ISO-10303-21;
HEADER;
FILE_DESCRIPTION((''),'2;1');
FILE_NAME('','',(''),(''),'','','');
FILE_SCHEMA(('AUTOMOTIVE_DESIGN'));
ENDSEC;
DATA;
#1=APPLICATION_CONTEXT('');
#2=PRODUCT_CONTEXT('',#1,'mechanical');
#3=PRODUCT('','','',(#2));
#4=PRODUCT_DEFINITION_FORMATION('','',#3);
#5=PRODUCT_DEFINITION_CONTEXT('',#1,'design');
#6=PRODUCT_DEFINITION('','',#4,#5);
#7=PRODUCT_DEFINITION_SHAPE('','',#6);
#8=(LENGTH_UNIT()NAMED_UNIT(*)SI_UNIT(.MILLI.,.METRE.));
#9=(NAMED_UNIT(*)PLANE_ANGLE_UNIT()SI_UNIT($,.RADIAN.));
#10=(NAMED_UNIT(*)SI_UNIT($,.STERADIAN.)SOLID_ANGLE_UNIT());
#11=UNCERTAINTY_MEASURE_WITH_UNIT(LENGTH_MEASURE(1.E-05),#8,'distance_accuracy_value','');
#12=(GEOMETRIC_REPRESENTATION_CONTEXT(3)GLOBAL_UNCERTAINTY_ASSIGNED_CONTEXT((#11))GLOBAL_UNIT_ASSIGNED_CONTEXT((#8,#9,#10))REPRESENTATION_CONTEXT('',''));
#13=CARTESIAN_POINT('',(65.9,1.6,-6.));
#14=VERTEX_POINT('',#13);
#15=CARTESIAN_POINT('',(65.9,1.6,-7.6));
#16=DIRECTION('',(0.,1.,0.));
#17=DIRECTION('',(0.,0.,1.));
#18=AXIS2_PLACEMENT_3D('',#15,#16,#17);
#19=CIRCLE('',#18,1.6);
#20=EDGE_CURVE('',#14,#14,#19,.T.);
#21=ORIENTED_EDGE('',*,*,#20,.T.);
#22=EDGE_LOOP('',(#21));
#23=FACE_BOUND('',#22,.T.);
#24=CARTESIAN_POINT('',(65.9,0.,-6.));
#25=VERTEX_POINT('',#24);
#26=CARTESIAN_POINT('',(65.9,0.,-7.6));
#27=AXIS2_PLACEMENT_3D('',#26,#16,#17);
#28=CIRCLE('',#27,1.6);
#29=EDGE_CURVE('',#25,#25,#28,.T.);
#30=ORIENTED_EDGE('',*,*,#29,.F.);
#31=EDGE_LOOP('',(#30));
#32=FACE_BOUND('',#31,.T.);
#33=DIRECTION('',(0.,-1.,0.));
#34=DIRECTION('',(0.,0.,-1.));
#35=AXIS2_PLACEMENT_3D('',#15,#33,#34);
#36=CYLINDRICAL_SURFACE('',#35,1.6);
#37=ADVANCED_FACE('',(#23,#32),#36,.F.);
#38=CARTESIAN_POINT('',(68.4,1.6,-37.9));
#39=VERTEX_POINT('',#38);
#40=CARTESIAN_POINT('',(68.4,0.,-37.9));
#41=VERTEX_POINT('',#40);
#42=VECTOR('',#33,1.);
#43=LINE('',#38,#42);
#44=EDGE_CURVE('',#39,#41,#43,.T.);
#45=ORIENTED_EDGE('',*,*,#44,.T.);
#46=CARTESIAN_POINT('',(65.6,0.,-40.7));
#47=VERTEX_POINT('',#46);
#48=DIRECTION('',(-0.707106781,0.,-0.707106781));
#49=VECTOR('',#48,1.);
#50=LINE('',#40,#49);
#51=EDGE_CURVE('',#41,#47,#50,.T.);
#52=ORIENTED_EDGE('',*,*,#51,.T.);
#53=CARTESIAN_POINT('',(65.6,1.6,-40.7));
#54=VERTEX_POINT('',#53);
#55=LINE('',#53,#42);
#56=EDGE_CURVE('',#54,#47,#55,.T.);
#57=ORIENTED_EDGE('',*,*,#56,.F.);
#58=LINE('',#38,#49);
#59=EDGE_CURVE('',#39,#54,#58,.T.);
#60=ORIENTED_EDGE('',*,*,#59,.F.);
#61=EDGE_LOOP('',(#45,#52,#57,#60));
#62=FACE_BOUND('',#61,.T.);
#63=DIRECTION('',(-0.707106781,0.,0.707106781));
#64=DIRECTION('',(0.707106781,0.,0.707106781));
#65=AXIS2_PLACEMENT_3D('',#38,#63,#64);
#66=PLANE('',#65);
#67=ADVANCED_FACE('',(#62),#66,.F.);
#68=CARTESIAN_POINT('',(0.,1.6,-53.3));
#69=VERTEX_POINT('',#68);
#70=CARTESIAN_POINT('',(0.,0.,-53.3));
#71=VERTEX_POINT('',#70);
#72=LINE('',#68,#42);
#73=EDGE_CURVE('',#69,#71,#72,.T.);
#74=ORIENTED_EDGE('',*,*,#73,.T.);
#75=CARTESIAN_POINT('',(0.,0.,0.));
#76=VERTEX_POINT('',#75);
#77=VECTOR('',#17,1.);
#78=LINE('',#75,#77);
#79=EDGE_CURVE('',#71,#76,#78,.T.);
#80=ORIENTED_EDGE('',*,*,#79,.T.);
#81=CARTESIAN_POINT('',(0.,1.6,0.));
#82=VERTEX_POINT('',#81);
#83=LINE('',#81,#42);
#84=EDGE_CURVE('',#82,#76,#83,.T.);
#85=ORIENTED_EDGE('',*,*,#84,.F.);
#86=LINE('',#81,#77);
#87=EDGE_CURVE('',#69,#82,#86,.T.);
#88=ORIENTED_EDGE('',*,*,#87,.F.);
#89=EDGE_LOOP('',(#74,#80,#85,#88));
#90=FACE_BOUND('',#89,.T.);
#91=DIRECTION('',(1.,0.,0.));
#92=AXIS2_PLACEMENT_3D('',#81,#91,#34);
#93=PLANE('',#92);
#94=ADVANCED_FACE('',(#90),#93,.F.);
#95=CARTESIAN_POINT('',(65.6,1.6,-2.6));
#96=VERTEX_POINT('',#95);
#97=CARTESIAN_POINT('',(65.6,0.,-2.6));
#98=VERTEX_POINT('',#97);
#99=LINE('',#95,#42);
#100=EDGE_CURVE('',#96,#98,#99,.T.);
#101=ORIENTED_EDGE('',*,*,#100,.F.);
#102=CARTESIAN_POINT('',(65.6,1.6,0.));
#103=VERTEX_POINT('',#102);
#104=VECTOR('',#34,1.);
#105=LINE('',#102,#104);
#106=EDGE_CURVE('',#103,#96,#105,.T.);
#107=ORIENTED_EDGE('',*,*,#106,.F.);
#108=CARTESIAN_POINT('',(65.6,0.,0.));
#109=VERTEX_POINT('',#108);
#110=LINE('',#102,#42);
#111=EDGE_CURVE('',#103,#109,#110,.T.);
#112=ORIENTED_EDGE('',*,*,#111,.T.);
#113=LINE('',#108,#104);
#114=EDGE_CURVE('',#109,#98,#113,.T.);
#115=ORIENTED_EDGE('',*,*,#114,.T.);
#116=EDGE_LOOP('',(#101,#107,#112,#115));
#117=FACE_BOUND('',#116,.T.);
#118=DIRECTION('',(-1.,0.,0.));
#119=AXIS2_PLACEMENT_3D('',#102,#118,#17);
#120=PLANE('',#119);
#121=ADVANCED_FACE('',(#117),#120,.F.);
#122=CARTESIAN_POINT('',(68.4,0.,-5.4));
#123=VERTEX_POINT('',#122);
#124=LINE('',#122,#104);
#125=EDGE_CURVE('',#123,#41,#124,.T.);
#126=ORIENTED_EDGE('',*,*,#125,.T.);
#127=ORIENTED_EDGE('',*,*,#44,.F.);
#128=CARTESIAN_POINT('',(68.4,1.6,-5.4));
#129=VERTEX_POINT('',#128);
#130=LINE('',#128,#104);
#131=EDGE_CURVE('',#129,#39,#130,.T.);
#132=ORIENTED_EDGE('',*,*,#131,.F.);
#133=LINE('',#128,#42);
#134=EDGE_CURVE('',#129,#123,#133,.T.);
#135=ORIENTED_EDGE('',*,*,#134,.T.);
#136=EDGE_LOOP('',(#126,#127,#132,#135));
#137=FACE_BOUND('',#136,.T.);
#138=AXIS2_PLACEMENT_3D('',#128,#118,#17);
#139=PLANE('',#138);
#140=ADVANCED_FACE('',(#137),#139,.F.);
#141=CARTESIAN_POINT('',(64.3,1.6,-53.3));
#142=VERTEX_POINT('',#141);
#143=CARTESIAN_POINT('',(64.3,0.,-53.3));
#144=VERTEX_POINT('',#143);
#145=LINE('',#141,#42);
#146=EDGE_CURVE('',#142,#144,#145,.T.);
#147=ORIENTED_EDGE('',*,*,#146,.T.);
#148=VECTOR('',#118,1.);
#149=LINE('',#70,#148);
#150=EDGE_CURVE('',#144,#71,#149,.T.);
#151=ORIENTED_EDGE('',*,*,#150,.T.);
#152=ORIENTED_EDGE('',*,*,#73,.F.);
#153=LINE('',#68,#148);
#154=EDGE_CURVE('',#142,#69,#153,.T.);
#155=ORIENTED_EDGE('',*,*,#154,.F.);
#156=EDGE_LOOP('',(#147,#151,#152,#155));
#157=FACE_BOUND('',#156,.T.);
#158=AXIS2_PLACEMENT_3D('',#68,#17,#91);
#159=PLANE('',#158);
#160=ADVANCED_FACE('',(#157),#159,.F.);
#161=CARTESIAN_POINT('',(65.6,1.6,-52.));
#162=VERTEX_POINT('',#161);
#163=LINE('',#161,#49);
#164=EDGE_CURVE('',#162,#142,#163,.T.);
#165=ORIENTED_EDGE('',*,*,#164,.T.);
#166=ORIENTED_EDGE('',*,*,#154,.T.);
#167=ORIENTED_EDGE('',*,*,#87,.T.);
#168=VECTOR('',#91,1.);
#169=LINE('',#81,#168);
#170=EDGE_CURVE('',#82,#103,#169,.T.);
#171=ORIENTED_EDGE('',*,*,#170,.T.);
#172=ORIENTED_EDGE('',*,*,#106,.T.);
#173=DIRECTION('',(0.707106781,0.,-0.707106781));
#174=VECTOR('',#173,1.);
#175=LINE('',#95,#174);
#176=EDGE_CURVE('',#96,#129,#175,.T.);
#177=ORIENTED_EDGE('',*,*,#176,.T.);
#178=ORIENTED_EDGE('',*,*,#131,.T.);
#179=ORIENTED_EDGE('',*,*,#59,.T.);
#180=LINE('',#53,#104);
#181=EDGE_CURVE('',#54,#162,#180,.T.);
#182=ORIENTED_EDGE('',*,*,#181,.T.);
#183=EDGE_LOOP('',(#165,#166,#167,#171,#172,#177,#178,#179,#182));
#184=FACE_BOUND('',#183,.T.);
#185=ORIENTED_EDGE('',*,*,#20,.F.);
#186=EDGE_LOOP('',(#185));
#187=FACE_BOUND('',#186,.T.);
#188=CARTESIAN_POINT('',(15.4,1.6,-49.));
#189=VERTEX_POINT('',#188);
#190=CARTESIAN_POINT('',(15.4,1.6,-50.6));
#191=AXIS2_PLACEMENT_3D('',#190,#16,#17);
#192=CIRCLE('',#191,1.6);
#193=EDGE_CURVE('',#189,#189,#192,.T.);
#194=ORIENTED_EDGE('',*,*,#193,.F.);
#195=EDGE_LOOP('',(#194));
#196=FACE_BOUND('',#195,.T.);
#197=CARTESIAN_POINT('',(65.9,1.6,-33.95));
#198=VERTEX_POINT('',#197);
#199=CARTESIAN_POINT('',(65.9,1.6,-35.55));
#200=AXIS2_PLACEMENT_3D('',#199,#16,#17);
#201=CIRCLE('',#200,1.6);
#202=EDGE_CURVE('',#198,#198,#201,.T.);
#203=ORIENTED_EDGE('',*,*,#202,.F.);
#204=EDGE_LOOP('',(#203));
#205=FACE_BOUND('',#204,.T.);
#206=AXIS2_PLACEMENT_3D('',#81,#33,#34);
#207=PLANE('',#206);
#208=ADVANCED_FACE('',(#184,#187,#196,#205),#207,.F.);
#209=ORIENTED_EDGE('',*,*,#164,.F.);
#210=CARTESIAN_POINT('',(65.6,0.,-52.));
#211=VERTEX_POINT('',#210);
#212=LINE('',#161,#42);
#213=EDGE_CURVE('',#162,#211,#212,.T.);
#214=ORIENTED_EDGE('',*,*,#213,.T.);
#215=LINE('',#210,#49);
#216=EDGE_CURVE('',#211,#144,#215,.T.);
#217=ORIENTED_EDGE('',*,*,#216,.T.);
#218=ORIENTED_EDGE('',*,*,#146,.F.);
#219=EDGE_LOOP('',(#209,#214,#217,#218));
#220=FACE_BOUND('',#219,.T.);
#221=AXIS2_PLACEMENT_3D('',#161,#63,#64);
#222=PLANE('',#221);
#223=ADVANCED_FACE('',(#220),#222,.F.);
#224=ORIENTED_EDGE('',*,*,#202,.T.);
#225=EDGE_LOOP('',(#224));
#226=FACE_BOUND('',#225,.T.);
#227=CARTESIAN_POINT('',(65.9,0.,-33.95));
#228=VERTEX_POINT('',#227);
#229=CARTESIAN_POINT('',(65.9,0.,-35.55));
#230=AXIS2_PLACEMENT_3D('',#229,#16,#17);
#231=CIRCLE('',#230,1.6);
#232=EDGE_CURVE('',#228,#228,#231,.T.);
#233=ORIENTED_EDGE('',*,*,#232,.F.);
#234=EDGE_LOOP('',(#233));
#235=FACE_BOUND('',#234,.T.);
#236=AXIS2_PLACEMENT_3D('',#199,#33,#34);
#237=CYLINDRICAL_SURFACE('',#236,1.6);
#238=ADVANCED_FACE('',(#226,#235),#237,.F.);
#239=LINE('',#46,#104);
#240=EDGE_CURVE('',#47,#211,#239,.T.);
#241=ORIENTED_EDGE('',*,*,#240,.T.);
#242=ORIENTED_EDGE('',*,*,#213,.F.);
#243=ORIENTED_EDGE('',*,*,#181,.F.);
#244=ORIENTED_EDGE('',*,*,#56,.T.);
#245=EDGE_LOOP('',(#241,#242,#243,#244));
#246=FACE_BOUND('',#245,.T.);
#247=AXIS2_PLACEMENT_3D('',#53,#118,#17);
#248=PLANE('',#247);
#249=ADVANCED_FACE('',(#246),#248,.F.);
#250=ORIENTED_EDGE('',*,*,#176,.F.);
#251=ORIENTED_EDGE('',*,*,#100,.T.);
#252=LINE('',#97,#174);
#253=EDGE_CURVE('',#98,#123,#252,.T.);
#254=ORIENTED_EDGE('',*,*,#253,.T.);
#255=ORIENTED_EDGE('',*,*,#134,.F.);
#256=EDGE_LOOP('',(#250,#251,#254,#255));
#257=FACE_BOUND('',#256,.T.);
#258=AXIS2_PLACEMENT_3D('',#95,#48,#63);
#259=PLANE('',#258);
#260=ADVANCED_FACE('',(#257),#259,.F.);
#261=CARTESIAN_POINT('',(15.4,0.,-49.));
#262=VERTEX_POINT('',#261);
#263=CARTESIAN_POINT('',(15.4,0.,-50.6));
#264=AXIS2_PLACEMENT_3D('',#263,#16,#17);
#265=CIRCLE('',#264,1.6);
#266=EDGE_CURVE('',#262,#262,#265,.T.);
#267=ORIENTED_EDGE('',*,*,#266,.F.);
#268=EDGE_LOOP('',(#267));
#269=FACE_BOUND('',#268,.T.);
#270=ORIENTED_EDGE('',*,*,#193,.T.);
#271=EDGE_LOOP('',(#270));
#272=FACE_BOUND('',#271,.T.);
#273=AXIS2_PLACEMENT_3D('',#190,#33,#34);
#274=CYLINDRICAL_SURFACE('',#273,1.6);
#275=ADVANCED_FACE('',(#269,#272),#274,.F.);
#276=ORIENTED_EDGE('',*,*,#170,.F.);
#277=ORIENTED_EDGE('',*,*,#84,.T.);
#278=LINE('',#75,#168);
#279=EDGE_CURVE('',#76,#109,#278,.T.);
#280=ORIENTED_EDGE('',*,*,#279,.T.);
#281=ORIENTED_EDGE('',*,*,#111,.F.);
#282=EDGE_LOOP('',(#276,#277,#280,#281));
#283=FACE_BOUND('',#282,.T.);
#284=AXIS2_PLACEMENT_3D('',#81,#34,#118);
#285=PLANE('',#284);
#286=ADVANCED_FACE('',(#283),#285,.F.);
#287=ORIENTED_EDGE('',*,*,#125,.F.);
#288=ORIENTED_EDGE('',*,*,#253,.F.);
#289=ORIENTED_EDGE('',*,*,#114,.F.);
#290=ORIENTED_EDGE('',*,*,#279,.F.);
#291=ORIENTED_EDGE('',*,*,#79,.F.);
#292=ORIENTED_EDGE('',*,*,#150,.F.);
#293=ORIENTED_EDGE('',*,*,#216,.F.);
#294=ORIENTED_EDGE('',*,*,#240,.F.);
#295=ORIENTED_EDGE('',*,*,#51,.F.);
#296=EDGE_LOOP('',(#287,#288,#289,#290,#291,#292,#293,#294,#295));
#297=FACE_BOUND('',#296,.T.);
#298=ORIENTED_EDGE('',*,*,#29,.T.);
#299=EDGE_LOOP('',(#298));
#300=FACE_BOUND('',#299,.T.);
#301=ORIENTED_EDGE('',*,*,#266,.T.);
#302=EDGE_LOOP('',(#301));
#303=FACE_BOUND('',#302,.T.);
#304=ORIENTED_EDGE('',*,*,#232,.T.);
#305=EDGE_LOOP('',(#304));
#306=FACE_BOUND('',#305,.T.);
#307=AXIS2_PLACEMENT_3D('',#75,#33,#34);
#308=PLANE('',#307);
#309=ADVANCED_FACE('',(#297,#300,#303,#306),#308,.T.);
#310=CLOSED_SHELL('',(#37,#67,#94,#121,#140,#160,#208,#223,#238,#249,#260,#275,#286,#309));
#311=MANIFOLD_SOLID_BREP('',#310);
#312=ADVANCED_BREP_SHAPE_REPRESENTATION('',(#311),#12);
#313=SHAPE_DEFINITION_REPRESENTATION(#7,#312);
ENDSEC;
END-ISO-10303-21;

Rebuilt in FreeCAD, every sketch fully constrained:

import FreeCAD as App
import Part
import Sketcher


def add_polygon(sketch, points):
    """Adds a closed chain of lines whose ends are joined by coincident constraints."""
    first, n = sketch.GeometryCount, len(points)
    for a, b in zip(points, points[1:] + points[:1]):
        sketch.addGeometry(Part.LineSegment(App.Vector(*a, 0), App.Vector(*b, 0)), False)
    for i in range(n):
        sketch.addConstraint(Sketcher.Constraint("Coincident", first + i, 2, first + (i + 1) % n, 1))

doc = App.newDocument("Part")
body = doc.addObject("PartDesign::Body", "Body")

# Sketch on XZ plane
sketch1 = body.newObject("Sketcher::SketchObject", "Sketch")
sketch1.AttachmentSupport = (doc.getObject("XZ_Plane"), [""])
sketch1.MapMode = "FlatFace"
add_polygon(sketch1, [(65.6, 0), (65.6, -2.6), (68.4, -5.4), (68.4, -37.9), (65.6, -40.7), (65.6, -52), (64.3, -53.3), (0, -53.3), (0, 0)])  # lines 0-8
sketch1.addGeometry(Part.Circle(App.Vector(65.9, -7.6, 0), App.Vector(0, 0, 1), 1.6), False)  # 9
sketch1.addGeometry(Part.Circle(App.Vector(15.4, -50.6, 0), App.Vector(0, 0, 1), 1.6), False)  # 10
sketch1.addGeometry(Part.Circle(App.Vector(65.9, -35.5, 0), App.Vector(0, 0, 1), 1.6), False)  # 11
sketch1.addConstraint(Sketcher.Constraint("Vertical", 0))
sketch1.addConstraint(Sketcher.Constraint("Vertical", 2))
sketch1.addConstraint(Sketcher.Constraint("Vertical", 4))
sketch1.addConstraint(Sketcher.Constraint("Horizontal", 6))
sketch1.addConstraint(Sketcher.Constraint("Vertical", 7))
sketch1.addConstraint(Sketcher.Constraint("Horizontal", 8))
sketch1.addConstraint(Sketcher.Constraint("Coincident", 7, 2, -1, 1))
sketch1.addConstraint(Sketcher.Constraint("Equal", 9, 10))
sketch1.addConstraint(Sketcher.Constraint("Equal", 10, 11))
sketch1.addConstraint(Sketcher.Constraint("Perpendicular", 1, 3))
sketch1.addConstraint(Sketcher.Constraint("Parallel", 3, 5))
sketch1.addConstraint(Sketcher.Constraint("Vertical", 9, 3, 11, 3))
sketch1.addConstraint(Sketcher.Constraint("Vertical", 0, 2, 3, 2))
sketch1.addConstraint(Sketcher.Constraint("Equal", 1, 3))
sketch1.addConstraint(Sketcher.Constraint("Diameter", 9, 3.2))
sketch1.addConstraint(Sketcher.Constraint("DistanceX", 6, 2, 6, 1, 64.3))
sketch1.addConstraint(Sketcher.Constraint("DistanceX", 8, 1, 8, 2, 65.6))
sketch1.addConstraint(Sketcher.Constraint("DistanceY", 0, 2, 0, 1, 2.6))
sketch1.addConstraint(Sketcher.Constraint("DistanceY", 2, 2, 2, 1, 32.5))
sketch1.addConstraint(Sketcher.Constraint("DistanceY", 4, 2, 4, 1, 11.3))
sketch1.addConstraint(Sketcher.Constraint("DistanceY", 7, 1, 7, 2, 53.3))
sketch1.addConstraint(Sketcher.Constraint("DistanceY", 10, 3, 9, 3, 43.0))
sketch1.addConstraint(Sketcher.Constraint("DistanceY", 9, 3, 0, 2, 5.0))
sketch1.addConstraint(Sketcher.Constraint("DistanceX", 10, 3, 1, 2, 53.0))
sketch1.addConstraint(Sketcher.Constraint("DistanceX", -1, 1, 9, 3, 65.9))
sketch1.addConstraint(Sketcher.Constraint("DistanceY", 11, 3, -1, 1, 35.55))
pad1 = body.newObject("PartDesign::Pad", "Pad")
pad1.Profile = sketch1
pad1.Length = 1.6
pad1.Reversed = True

doc.recompute()
